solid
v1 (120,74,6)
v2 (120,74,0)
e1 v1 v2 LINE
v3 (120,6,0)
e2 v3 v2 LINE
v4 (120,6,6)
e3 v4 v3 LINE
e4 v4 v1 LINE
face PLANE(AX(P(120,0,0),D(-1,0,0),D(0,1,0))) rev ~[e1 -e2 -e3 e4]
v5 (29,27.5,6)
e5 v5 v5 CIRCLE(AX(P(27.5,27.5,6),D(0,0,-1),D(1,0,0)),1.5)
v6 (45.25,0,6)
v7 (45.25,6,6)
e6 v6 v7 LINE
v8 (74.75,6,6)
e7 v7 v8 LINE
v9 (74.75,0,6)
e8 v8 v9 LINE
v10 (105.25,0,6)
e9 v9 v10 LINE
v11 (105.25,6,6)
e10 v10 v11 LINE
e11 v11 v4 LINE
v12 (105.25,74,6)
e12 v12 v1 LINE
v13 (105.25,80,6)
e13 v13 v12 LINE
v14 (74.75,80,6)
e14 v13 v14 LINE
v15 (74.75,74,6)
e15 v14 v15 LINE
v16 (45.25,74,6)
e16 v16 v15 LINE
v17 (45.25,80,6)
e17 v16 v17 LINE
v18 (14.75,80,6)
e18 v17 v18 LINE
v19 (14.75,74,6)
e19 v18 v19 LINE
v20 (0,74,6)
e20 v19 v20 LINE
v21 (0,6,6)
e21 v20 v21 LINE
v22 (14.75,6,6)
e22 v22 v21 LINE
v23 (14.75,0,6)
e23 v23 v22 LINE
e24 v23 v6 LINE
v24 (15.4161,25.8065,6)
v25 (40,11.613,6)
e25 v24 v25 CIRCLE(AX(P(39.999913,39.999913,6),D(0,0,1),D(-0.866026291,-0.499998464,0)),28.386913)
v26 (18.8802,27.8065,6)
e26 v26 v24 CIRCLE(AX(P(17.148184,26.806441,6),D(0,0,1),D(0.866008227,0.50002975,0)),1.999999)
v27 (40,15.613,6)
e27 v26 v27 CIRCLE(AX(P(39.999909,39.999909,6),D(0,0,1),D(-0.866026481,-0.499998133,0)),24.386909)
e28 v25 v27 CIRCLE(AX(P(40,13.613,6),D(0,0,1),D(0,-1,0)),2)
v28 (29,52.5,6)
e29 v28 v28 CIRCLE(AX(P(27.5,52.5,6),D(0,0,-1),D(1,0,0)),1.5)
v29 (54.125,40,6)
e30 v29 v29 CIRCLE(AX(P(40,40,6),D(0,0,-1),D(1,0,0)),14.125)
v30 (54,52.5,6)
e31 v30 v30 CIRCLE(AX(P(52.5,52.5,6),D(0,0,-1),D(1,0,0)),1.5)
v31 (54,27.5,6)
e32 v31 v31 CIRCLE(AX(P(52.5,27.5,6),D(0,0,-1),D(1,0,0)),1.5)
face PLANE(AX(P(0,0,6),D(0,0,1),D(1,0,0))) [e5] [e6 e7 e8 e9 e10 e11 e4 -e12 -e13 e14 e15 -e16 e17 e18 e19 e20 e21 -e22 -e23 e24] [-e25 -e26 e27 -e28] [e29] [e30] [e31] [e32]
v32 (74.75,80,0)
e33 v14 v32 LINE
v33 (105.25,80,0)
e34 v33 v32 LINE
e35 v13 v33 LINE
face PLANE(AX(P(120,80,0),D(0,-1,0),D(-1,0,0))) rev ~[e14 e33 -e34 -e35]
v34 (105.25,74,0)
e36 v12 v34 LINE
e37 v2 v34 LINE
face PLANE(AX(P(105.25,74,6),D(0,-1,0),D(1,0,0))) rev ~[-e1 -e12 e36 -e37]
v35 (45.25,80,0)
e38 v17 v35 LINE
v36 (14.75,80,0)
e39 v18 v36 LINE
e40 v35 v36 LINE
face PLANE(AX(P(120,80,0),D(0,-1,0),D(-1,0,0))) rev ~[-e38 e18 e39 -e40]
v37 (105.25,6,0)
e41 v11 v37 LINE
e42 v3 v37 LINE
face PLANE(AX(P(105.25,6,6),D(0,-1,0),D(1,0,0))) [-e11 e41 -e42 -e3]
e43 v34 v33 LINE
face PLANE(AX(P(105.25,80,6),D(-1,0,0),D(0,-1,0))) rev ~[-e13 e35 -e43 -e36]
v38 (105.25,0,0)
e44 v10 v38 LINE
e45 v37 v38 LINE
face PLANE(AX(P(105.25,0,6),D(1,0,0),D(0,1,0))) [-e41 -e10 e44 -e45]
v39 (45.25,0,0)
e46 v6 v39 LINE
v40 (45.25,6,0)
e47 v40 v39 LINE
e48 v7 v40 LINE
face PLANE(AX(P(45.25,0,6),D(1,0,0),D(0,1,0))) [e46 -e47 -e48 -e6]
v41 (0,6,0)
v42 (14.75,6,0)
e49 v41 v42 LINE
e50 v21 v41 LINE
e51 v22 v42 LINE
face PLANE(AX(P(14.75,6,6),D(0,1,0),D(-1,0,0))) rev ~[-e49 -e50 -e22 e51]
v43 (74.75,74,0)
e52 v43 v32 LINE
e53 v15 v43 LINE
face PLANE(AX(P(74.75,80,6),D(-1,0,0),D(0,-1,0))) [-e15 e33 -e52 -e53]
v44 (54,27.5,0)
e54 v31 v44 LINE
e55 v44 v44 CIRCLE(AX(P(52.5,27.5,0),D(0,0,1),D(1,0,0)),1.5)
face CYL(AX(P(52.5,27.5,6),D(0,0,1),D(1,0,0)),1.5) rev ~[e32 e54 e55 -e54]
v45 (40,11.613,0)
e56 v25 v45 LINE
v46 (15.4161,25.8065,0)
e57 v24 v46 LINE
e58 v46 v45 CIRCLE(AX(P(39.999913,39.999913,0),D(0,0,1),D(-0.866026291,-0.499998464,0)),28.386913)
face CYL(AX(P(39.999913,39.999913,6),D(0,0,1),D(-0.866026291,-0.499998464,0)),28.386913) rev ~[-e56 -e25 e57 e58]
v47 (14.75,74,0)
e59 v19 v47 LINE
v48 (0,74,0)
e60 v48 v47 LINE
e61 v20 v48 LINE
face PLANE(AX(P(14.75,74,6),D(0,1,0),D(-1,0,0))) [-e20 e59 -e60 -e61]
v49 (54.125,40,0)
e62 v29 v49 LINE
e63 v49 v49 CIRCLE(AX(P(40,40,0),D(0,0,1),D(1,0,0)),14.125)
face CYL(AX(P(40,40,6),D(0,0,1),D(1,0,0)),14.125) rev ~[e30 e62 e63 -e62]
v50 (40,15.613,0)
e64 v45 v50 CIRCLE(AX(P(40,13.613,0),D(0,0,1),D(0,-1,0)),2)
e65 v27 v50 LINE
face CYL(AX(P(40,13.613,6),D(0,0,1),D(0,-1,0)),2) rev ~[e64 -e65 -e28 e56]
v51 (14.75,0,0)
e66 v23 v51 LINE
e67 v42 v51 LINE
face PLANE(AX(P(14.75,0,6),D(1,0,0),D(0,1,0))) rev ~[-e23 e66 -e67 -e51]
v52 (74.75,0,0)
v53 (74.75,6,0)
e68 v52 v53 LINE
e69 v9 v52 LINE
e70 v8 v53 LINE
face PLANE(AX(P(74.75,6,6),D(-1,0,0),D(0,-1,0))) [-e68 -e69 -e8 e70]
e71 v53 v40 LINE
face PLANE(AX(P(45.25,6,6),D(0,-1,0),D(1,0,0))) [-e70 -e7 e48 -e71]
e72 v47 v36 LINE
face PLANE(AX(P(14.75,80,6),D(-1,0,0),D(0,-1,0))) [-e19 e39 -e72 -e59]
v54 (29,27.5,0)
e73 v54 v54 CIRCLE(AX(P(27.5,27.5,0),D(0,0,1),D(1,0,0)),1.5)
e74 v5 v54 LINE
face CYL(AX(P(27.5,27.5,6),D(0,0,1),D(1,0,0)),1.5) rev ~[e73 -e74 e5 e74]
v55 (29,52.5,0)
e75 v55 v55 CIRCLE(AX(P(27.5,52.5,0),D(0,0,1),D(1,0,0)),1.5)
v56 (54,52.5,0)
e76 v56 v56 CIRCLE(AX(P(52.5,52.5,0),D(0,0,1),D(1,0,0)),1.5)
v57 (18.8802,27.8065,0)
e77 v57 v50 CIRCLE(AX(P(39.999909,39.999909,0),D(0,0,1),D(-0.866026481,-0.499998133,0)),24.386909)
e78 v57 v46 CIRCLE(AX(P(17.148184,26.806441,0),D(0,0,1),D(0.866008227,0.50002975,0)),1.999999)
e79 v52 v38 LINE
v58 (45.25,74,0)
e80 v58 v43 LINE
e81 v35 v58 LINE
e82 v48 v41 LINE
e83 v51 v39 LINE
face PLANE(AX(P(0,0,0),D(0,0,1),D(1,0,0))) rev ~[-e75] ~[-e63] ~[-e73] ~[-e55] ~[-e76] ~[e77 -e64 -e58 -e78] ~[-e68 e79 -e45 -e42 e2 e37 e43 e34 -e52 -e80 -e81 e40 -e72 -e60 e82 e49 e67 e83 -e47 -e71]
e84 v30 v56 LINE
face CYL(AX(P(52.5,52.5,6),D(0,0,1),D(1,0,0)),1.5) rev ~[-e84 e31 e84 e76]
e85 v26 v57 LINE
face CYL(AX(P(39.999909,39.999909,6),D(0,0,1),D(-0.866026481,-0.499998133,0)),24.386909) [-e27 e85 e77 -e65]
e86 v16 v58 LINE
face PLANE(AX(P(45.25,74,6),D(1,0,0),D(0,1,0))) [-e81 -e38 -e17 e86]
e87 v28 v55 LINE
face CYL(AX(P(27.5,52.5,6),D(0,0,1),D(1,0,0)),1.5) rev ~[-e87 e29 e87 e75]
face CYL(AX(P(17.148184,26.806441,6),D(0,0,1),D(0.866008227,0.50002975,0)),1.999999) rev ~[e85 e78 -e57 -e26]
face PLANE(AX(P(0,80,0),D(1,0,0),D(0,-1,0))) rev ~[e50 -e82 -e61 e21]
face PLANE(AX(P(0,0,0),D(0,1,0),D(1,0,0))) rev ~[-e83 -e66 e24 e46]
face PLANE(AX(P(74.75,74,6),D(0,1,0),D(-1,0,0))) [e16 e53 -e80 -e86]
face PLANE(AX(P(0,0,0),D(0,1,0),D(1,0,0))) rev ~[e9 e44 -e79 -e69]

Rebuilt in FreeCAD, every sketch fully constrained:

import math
import FreeCAD as App
import Part
import Sketcher
from FreeCAD import Vector
Q = App.Units.Quantity


def add_polygon(sketch, points):
    """Adds a closed chain of lines whose ends are joined by coincident constraints."""
    first, n = sketch.GeometryCount, len(points)
    for a, b in zip(points, points[1:] + points[:1]):
        sketch.addGeometry(Part.LineSegment(App.Vector(*a, 0), App.Vector(*b, 0)), False)
    for i in range(n):
        sketch.addConstraint(Sketcher.Constraint("Coincident", first + i, 2, first + (i + 1) % n, 1))

doc = App.newDocument("Part")
body = doc.addObject("PartDesign::Body", "Body")

# Sketch on XY plane
sketch1 = body.newObject("Sketcher::SketchObject", "Sketch")
sketch1.AttachmentSupport = (doc.getObject("XY_Plane"), [""])
sketch1.MapMode = "FlatFace"
add_polygon(sketch1, [(0, 80), (0, 0), (120, 0), (120, 80)])  # lines 0-3
sketch1.addConstraint(Sketcher.Constraint("Vertical", 0))
sketch1.addConstraint(Sketcher.Constraint("Horizontal", 1))
sketch1.addConstraint(Sketcher.Constraint("Vertical", 2))
sketch1.addConstraint(Sketcher.Constraint("Horizontal", 3))
sketch1.addConstraint(Sketcher.Constraint("Coincident", 0, 2, -1, 1))
sketch1.addConstraint(Sketcher.Constraint("DistanceX", 1, 1, 1, 2, Q("120 mm")))
sketch1.addConstraint(Sketcher.Constraint("DistanceY", 0, 2, 0, 1, Q("80 mm")))
pad1 = body.newObject("PartDesign::Pad", "Pad")
pad1.Profile = sketch1
pad1.Length = 6

# Sketch on XY plane
sketch2 = body.newObject("Sketcher::SketchObject", "Sketch001")
sketch2.AttachmentSupport = (doc.getObject("XY_Plane"), [""])
sketch2.MapMode = "FlatFace"
sketch2.AttachmentOffset = App.Placement(Vector(0, 0, 6), App.Rotation())
add_polygon(sketch2, [(0, 6), (0, 0), (15, 0), (15, 6)])  # lines 0-3
add_polygon(sketch2, [(45, 6), (45, 0), (75, 0), (75, 6)])  # lines 4-7
add_polygon(sketch2, [(0, 80), (0, 74), (15, 74), (15, 80)])  # lines 8-11
add_polygon(sketch2, [(105, 6), (105, 0), (120, 0), (120, 6)])  # lines 12-15
add_polygon(sketch2, [(75, 80), (45, 80), (45, 74), (75, 74)])  # lines 16-19
add_polygon(sketch2, [(105, 74), (120, 74), (120, 80), (105, 80)])  # lines 20-23
sketch2.addConstraint(Sketcher.Constraint("Vertical", 0))
sketch2.addConstraint(Sketcher.Constraint("Horizontal", 1))
sketch2.addConstraint(Sketcher.Constraint("Vertical", 2))
sketch2.addConstraint(Sketcher.Constraint("Horizontal", 3))
sketch2.addConstraint(Sketcher.Constraint("Vertical", 4))
sketch2.addConstraint(Sketcher.Constraint("Horizontal", 5))
sketch2.addConstraint(Sketcher.Constraint("Vertical", 6))
sketch2.addConstraint(Sketcher.Constraint("Horizontal", 7))
sketch2.addConstraint(Sketcher.Constraint("Vertical", 8))
sketch2.addConstraint(Sketcher.Constraint("Horizontal", 9))
sketch2.addConstraint(Sketcher.Constraint("Vertical", 10))
sketch2.addConstraint(Sketcher.Constraint("Horizontal", 11))
sketch2.addConstraint(Sketcher.Constraint("Vertical", 12))
sketch2.addConstraint(Sketcher.Constraint("Horizontal", 13))
sketch2.addConstraint(Sketcher.Constraint("Vertical", 14))
sketch2.addConstraint(Sketcher.Constraint("Horizontal", 15))
sketch2.addConstraint(Sketcher.Constraint("Horizontal", 16))
sketch2.addConstraint(Sketcher.Constraint("Vertical", 17))
sketch2.addConstraint(Sketcher.Constraint("Horizontal", 18))
sketch2.addConstraint(Sketcher.Constraint("Vertical", 19))
sketch2.addConstraint(Sketcher.Constraint("Horizontal", 20))
sketch2.addConstraint(Sketcher.Constraint("Vertical", 21))
sketch2.addConstraint(Sketcher.Constraint("Horizontal", 22))
sketch2.addConstraint(Sketcher.Constraint("Vertical", 23))
sketch2.addConstraint(Sketcher.Constraint("Coincident", 0, 2, -1, 1))
sketch2.addConstraint(Sketcher.Constraint("PointOnObject", 4, 2, -1))
sketch2.addConstraint(Sketcher.Constraint("PointOnObject", 8, 2, -2))
sketch2.addConstraint(Sketcher.Constraint("PointOnObject", 12, 2, -1))
sketch2.addConstraint(Sketcher.Constraint("Horizontal", 3, 2, 6, 2))
sketch2.addConstraint(Sketcher.Constraint("Horizontal", 7, 2, 14, 2))
sketch2.addConstraint(Sketcher.Constraint("Horizontal", 11, 2, 16, 2))
sketch2.addConstraint(Sketcher.Constraint("Horizontal", 9, 2, 17, 2))
sketch2.addConstraint(Sketcher.Constraint("Horizontal", 18, 2, 20, 2))
sketch2.addConstraint(Sketcher.Constraint("Horizontal", 19, 2, 21, 2))
sketch2.addConstraint(Sketcher.Constraint("Vertical", 2, 2, 9, 2))
sketch2.addConstraint(Sketcher.Constraint("Vertical", 7, 2, 16, 2))
sketch2.addConstraint(Sketcher.Constraint("Vertical", 6, 2, 18, 2))
sketch2.addConstraint(Sketcher.Constraint("Vertical", 14, 2, 20, 2))
sketch2.addConstraint(Sketcher.Constraint("Vertical", 15, 2, 22, 2))
sketch2.addConstraint(Sketcher.Constraint("Equal", 11, 13))
sketch2.addConstraint(Sketcher.Constraint("Equal", 6, 8))
sketch2.addConstraint(Sketcher.Constraint("DistanceY", 0, 2, 0, 1, Q("6 mm")))
sketch2.addConstraint(Sketcher.Constraint("DistanceX", 5, 1, 5, 2, Q("29.5 mm")))
sketch2.addConstraint(Sketcher.Constraint("DistanceX", 1, 2, 5, 2, Q("60 mm")))
sketch2.addConstraint(Sketcher.Constraint("DistanceX", 4, 2, 12, 2, Q("60 mm")))
sketch2.addConstraint(Sketcher.Constraint("DistanceX", 1, 1, 1, 2, Q("14.75 mm")))
sketch2.addConstraint(Sketcher.Constraint("DistanceY", -1, 1, 8, 2, Q("74 mm")))
pocket1 = body.newObject("PartDesign::Pocket", "Pocket")
pocket1.Profile = sketch2
pocket1.Type = "UpToFirst"

# Sketch on XY plane
sketch3 = body.newObject("Sketcher::SketchObject", "Sketch002")
sketch3.AttachmentSupport = (doc.getObject("XY_Plane"), [""])
sketch3.MapMode = "FlatFace"
sketch3.AttachmentOffset = App.Placement(Vector(0, 0, 6), App.Rotation())
sketch3.addGeometry(Part.Circle(Vector(40, 40, 0), Vector(0, 0, 1), 4.6), False)
sketch3.addConstraint(Sketcher.Constraint("Diameter", 0, Q("9.2 mm")))
sketch3.addConstraint(Sketcher.Constraint("DistanceX", -1, 1, 0, 3, Q("40 mm")))
sketch3.addConstraint(Sketcher.Constraint("DistanceY", -1, 1, 0, 3, Q("40 mm")))
pocket2 = body.newObject("PartDesign::Pocket", "Pocket001")
pocket2.Profile = sketch3
pocket2.Type = "UpToFirst"

# Sketch on XY plane
sketch4 = body.newObject("Sketcher::SketchObject", "Sketch003")
sketch4.AttachmentSupport = (doc.getObject("XY_Plane"), [""])
sketch4.MapMode = "FlatFace"
sketch4.AttachmentOffset = App.Placement(Vector(0, 0, 6), App.Rotation())
sketch4.addGeometry(Part.Circle(Vector(27.5, 27.5, 0), Vector(0, 0, 1), 1.5), False)
sketch4.addGeometry(Part.Circle(Vector(40, 40, 0), Vector(0, 0, 1), 14.1), False)
sketch4.addGeometry(Part.Circle(Vector(40, 40, 0), Vector(0, 0, 1), 4.6), False)
sketch4.addGeometry(Part.Circle(Vector(52.5, 27.5, 0), Vector(0, 0, 1), 1.5), False)
sketch4.addGeometry(Part.Circle(Vector(27.5, 52.5, 0), Vector(0, 0, 1), 1.5), False)
sketch4.addGeometry(Part.Circle(Vector(52.5, 52.5, 0), Vector(0, 0, 1), 1.5), False)
sketch4.addGeometry(Part.ArcOfCircle(Part.Circle(Vector(40, 40, 0), Vector(0, 0, 1), 28.4), math.radians(-150), math.radians(-90)), False)
sketch4.addGeometry(Part.ArcOfCircle(Part.Circle(Vector(40, 13.6, 0), Vector(0, 0, 1), 2), math.radians(-90), math.radians(90)), False)
sketch4.addGeometry(Part.ArcOfCircle(Part.Circle(Vector(40, 40, 0), Vector(0, 0, 1), 24.4), math.radians(-150), math.radians(-90)), False)
sketch4.addGeometry(Part.ArcOfCircle(Part.Circle(Vector(17.1, 26.8, 0), Vector(0, 0, 1), 2), math.radians(30), math.radians(210)), False)
sketch4.addConstraint(Sketcher.Constraint("Tangent", 6, 2, 7, 1))
sketch4.addConstraint(Sketcher.Constraint("Tangent", 7, 2, 8, 2))
sketch4.addConstraint(Sketcher.Constraint("Tangent", 8, 1, 9, 1))
sketch4.addConstraint(Sketcher.Constraint("Tangent", 9, 2, 6, 1))
sketch4.addConstraint(Sketcher.Constraint("Coincident", 2, 3, 1, 3))
sketch4.addConstraint(Sketcher.Constraint("Coincident", 6, 3, 1, 3))
sketch4.addConstraint(Sketcher.Constraint("Coincident", 8, 3, 1, 3))
sketch4.addConstraint(Sketcher.Constraint("Equal", 0, 3))
sketch4.addConstraint(Sketcher.Constraint("Equal", 3, 4))
sketch4.addConstraint(Sketcher.Constraint("Equal", 4, 5))
sketch4.addConstraint(Sketcher.Constraint("Horizontal", 0, 3, 3, 3))
sketch4.addConstraint(Sketcher.Constraint("Horizontal", 4, 3, 5, 3))
sketch4.addConstraint(Sketcher.Constraint("Vertical", 0, 3, 4, 3))
sketch4.addConstraint(Sketcher.Constraint("Vertical", 3, 3, 5, 3))
sketch4.addConstraint(Sketcher.Constraint("Vertical", 6, 3, 7, 3))
sketch4.addConstraint(Sketcher.Constraint("Diameter", 0, Q("3 mm")))
sketch4.addConstraint(Sketcher.Constraint("Radius", 7, Q("2 mm")))
sketch4.addConstraint(Sketcher.Constraint("Diameter", 1, Q("28.25 mm")))
sketch4.addConstraint(Sketcher.Constraint("DistanceX", 0, 3, 3, 3, Q("25 mm")))
sketch4.addConstraint(Sketcher.Constraint("DistanceY", 0, 3, 4, 3, Q("25 mm")))
sketch4.addConstraint(Sketcher.Constraint("Diameter", 2, Q("9.2 mm")))
sketch4.addConstraint(Sketcher.Constraint("DistanceX", 0, 3, 1, 3, Q("12.5 mm")))
sketch4.addConstraint(Sketcher.Constraint("DistanceY", 0, 3, 1, 3, Q("12.5 mm")))
sketch4.addConstraint(Sketcher.Constraint("DistanceX", -1, 1, 1, 3, Q("40 mm")))
sketch4.addConstraint(Sketcher.Constraint("DistanceY", -1, 1, 1, 3, Q("40 mm")))
sketch4.addConstraint(Sketcher.Constraint("Radius", 6, Q("28.387 mm")))
sketch4.addConstraint(Sketcher.Constraint("DistanceY", 9, 3, 8, 1, Q("1 mm")))
pocket3 = body.newObject("PartDesign::Pocket", "Pocket002")
pocket3.Profile = sketch4
pocket3.Length = 10

doc.recompute()
